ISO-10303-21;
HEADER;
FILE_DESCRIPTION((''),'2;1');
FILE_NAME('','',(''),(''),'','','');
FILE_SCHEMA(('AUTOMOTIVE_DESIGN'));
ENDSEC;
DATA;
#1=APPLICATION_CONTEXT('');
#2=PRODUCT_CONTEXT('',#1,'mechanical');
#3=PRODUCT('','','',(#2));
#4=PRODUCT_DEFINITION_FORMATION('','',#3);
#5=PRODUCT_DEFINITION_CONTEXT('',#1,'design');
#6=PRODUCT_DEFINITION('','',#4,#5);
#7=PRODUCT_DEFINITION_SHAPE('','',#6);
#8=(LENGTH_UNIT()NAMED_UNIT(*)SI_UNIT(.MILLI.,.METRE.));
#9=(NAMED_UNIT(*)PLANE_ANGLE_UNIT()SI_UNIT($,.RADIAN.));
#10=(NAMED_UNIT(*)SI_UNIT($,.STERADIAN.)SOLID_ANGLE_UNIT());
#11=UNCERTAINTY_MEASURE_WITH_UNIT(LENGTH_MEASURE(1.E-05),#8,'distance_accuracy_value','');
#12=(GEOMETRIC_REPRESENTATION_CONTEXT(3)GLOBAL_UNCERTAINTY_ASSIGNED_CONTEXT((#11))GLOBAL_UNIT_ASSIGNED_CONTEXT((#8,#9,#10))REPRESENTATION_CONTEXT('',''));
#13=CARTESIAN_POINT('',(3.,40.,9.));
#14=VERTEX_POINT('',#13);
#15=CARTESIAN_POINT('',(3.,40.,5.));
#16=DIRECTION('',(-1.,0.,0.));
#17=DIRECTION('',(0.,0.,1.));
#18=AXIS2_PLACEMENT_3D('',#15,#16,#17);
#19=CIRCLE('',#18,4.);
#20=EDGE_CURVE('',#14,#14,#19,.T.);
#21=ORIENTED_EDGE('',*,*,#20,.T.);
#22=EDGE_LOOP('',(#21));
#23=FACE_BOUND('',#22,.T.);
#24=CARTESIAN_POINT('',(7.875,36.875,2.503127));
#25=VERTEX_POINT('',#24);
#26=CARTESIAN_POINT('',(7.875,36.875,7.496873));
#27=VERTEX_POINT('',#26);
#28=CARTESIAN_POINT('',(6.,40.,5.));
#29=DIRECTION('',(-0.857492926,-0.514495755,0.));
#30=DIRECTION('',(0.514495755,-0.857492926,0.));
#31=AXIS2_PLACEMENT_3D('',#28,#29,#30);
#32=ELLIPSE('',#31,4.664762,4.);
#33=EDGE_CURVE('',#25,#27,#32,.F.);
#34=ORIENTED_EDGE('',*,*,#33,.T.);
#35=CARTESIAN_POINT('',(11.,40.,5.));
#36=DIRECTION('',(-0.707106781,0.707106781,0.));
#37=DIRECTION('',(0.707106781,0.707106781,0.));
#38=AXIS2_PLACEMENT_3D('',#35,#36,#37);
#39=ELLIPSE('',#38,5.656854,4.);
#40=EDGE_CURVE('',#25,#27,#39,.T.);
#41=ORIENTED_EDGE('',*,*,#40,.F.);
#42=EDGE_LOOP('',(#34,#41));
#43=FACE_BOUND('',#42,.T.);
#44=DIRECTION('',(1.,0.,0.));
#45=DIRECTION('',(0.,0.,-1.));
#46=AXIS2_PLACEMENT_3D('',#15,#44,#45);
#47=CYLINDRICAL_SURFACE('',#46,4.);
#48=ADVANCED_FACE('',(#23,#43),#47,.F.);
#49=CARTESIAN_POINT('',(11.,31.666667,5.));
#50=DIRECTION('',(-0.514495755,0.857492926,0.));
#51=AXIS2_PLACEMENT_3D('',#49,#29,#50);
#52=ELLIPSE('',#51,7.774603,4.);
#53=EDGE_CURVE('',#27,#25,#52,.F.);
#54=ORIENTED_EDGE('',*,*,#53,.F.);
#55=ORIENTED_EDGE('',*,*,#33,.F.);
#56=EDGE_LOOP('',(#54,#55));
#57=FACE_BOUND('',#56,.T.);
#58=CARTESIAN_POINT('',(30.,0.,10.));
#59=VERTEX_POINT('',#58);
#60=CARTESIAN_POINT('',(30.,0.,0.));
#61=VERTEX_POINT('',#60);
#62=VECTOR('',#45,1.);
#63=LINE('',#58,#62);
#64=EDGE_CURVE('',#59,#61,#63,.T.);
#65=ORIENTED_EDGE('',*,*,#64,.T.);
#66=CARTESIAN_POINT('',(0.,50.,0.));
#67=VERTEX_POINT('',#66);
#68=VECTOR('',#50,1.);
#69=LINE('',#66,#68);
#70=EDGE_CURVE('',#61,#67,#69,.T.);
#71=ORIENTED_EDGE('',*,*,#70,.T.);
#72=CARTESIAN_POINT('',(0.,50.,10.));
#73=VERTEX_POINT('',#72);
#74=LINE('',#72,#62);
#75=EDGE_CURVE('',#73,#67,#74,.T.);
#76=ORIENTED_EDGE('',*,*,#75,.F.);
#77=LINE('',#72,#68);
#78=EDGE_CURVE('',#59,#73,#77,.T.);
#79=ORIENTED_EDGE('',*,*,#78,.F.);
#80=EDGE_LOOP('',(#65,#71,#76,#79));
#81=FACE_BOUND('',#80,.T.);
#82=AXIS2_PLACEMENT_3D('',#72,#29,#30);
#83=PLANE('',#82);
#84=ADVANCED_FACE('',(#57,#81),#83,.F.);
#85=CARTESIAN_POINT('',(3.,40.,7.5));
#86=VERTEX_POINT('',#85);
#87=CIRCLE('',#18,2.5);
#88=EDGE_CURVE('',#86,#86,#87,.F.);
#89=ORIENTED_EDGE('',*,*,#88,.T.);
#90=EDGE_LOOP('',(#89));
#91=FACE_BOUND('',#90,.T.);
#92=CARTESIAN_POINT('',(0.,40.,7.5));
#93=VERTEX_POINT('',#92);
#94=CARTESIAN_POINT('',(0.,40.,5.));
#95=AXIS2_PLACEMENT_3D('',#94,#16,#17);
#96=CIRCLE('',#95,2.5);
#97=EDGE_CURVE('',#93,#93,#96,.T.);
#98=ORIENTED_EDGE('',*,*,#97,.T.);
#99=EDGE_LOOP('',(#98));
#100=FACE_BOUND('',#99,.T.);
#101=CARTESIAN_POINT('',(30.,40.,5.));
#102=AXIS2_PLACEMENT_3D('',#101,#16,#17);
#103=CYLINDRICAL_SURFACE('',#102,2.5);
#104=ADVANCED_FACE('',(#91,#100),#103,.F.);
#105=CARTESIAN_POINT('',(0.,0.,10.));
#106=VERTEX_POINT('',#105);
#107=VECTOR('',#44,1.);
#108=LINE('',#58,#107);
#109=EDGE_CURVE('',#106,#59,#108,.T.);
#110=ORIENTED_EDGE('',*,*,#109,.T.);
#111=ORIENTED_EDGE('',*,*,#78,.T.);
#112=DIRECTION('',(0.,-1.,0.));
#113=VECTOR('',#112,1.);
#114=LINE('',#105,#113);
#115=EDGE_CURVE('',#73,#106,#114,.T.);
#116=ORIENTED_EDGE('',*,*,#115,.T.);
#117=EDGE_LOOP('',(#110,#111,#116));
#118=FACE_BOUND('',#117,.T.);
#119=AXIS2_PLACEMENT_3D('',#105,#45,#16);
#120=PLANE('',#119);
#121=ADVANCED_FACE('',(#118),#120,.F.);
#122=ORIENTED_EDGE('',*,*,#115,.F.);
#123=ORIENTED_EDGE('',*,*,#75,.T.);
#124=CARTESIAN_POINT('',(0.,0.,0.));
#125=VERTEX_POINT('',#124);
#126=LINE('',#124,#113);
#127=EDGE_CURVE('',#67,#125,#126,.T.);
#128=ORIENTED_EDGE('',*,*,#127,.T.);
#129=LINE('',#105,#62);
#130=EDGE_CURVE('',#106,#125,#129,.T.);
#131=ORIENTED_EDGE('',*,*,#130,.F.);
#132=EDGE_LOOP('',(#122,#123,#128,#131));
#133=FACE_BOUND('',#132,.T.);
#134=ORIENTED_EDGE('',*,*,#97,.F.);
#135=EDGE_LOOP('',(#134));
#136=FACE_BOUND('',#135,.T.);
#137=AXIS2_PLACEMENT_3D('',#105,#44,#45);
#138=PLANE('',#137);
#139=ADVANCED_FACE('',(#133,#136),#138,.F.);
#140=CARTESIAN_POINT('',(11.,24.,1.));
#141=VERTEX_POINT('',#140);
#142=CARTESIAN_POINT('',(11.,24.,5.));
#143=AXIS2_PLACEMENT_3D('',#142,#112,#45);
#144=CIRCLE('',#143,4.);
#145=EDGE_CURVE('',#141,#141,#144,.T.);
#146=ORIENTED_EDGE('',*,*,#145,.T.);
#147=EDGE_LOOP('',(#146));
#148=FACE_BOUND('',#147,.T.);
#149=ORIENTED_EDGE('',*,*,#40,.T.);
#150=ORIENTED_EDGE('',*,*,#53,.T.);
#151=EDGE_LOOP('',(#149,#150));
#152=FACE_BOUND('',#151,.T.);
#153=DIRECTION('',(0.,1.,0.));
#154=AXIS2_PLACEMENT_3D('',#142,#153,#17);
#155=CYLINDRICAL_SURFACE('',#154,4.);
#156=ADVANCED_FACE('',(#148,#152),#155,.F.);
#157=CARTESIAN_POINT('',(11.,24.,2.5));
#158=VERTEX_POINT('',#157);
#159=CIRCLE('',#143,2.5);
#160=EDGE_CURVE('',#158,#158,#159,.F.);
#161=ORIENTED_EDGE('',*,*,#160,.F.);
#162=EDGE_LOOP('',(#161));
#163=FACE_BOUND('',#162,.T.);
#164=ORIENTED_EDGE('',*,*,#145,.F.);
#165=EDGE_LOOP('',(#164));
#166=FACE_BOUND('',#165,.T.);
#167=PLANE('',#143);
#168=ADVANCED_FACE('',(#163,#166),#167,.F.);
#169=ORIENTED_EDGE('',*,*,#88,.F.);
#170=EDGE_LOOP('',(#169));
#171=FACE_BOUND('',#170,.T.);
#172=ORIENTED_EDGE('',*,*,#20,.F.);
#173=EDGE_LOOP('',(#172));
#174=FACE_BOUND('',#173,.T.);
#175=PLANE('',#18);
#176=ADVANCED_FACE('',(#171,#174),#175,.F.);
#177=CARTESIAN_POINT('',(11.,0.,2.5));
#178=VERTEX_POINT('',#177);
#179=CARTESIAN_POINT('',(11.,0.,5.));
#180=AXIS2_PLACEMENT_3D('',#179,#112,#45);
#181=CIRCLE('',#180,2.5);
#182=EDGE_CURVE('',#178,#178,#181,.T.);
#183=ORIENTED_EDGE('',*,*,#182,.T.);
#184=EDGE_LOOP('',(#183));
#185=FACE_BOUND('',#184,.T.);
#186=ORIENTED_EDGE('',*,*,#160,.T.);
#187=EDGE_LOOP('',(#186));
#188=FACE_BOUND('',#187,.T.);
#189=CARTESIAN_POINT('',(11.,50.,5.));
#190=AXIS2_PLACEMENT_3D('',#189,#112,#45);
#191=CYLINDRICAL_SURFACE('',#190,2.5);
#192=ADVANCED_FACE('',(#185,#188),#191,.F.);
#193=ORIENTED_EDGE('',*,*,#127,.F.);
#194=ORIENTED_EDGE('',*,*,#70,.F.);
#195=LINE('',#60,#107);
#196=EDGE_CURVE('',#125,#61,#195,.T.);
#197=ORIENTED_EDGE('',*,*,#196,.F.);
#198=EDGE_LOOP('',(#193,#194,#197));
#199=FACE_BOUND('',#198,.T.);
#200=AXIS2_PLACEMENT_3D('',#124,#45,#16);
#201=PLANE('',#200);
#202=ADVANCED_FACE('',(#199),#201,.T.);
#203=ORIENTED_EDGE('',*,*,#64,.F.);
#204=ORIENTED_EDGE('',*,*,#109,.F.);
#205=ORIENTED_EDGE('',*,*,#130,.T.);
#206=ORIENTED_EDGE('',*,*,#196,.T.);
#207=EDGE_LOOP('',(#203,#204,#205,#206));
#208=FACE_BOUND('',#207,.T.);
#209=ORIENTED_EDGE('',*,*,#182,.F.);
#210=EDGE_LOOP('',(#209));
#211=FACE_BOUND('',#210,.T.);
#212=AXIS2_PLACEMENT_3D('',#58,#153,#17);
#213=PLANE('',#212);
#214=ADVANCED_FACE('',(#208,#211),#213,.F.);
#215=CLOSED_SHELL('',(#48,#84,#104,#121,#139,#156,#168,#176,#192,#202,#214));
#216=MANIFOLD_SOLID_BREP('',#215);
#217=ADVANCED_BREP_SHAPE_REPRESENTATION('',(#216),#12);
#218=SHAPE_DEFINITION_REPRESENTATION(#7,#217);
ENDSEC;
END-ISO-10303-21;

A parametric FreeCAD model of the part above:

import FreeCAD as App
import Part
import Sketcher
from FreeCAD import Vector
Q = App.Units.Quantity


def add_polygon(sketch, points):
    """Adds a closed chain of lines whose ends are joined by coincident constraints."""
    first, n = sketch.GeometryCount, len(points)
    for a, b in zip(points, points[1:] + points[:1]):
        sketch.addGeometry(Part.LineSegment(App.Vector(*a, 0), App.Vector(*b, 0)), False)
    for i in range(n):
        sketch.addConstraint(Sketcher.Constraint("Coincident", first + i, 2, first + (i + 1) % n, 1))

doc = App.newDocument("Part")
body = doc.addObject("PartDesign::Body", "Body")

# Sketch on XY plane
sketch1 = body.newObject("Sketcher::SketchObject", "Sketch")
sketch1.AttachmentSupport = (doc.getObject("XY_Plane"), [""])
sketch1.MapMode = "FlatFace"
add_polygon(sketch1, [(0, 50), (0, 0), (30, 0)])  # lines 0-2
sketch1.addConstraint(Sketcher.Constraint("Vertical", 0))
sketch1.addConstraint(Sketcher.Constraint("Horizontal", 1))
sketch1.addConstraint(Sketcher.Constraint("Coincident", 0, 2, -1, 1))
sketch1.addConstraint(Sketcher.Constraint("DistanceX", 1, 1, 1, 2, Q("30 mm")))
sketch1.addConstraint(Sketcher.Constraint("DistanceY", 0, 2, 0, 1, Q("50 mm")))
pad1 = body.newObject("PartDesign::Pad", "Pad")
pad1.Profile = sketch1
pad1.Length = 10

# Sketch on XZ plane
sketch2 = body.newObject("Sketcher::SketchObject", "Sketch001")
sketch2.AttachmentSupport = (doc.getObject("XZ_Plane"), [""])
sketch2.MapMode = "FlatFace"
sketch2.addGeometry(Part.Circle(Vector(11, 5, 0), Vector(0, 0, 1), 2.5), False)
sketch2.addConstraint(Sketcher.Constraint("Diameter", 0, Q("5 mm")))
sketch2.addConstraint(Sketcher.Constraint("DistanceX", -1, 1, 0, 3, Q("11 mm")))
sketch2.addConstraint(Sketcher.Constraint("DistanceY", -1, 1, 0, 3, Q("5 mm")))
pocket1 = body.newObject("PartDesign::Pocket", "Pocket")
pocket1.Profile = sketch2
pocket1.Type = "ThroughAll"

# Sketch on YZ plane
sketch3 = body.newObject("Sketcher::SketchObject", "Sketch002")
sketch3.AttachmentSupport = (doc.getObject("YZ_Plane"), [""])
sketch3.MapMode = "FlatFace"
sketch3.addGeometry(Part.Circle(Vector(40, 5, 0), Vector(0, 0, 1), 2.5), False)
sketch3.addConstraint(Sketcher.Constraint("Diameter", 0, Q("5 mm")))
sketch3.addConstraint(Sketcher.Constraint("DistanceX", -1, 1, 0, 3, Q("40 mm")))
sketch3.addConstraint(Sketcher.Constraint("DistanceY", -1, 1, 0, 3, Q("5 mm")))
pocket2 = body.newObject("PartDesign::Pocket", "Pocket001")
pocket2.Profile = sketch3
pocket2.Type = "ThroughAll"
pocket2.Reversed = True

# Sketch on XZ plane
sketch4 = body.newObject("Sketcher::SketchObject", "Sketch003")
sketch4.AttachmentSupport = (doc.getObject("XZ_Plane"), [""])
sketch4.MapMode = "FlatFace"
sketch4.AttachmentOffset = App.Placement(Vector(0, 0, -50), App.Rotation())
sketch4.addGeometry(Part.Circle(Vector(11, 5, 0), Vector(0, 0, 1), 4), False)
sketch4.addConstraint(Sketcher.Constraint("Diameter", 0, Q("8 mm")))
sketch4.addConstraint(Sketcher.Constraint("DistanceX", -1, 1, 0, 3, Q("11 mm")))
sketch4.addConstraint(Sketcher.Constraint("DistanceY", -1, 1, 0, 3, Q("5 mm")))
pocket3 = body.newObject("PartDesign::Pocket", "Pocket002")
pocket3.Profile = sketch4
pocket3.Length = 26
pocket3.Reversed = True

# Sketch on YZ plane
sketch5 = body.newObject("Sketcher::SketchObject", "Sketch004")
sketch5.AttachmentSupport = (doc.getObject("YZ_Plane"), [""])
sketch5.MapMode = "FlatFace"
sketch5.AttachmentOffset = App.Placement(Vector(0, 0, 30), App.Rotation())
sketch5.addGeometry(Part.Circle(Vector(40, 5, 0), Vector(0, 0, 1), 4), False)
sketch5.addConstraint(Sketcher.Constraint("Diameter", 0, Q("8 mm")))
sketch5.addConstraint(Sketcher.Constraint("DistanceX", -1, 1, 0, 3, Q("40 mm")))
sketch5.addConstraint(Sketcher.Constraint("DistanceY", -1, 1, 0, 3, Q("5 mm")))
pocket4 = body.newObject("PartDesign::Pocket", "Pocket003")
pocket4.Profile = sketch5
pocket4.Length = 27

doc.recompute()
